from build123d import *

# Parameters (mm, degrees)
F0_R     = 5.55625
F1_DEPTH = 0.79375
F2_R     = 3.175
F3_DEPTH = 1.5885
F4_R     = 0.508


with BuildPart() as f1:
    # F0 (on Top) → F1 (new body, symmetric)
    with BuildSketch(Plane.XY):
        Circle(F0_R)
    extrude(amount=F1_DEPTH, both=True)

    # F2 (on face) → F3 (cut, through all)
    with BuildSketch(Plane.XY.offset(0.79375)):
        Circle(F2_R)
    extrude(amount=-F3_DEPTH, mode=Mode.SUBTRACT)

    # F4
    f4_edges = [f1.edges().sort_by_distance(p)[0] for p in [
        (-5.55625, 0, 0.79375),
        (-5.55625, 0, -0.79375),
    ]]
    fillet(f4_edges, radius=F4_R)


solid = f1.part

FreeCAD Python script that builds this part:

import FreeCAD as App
import Part
import Sketcher
Q = App.Units.Quantity


def edges_at(feature, points):
    """Names of the edges that pass closest to the given points."""
    edges = feature.Shape.Edges
    near = lambda p: min(range(len(edges)), key=lambda i: edges[i].distToShape(Part.Vertex(*p))[0])
    return sorted({f"Edge{near(p) + 1}" for p in points})

doc = App.newDocument("Part")
body = doc.addObject("PartDesign::Body", "Body")

sketch1 = doc.addObject("Sketcher::SketchObject", "Sketch")
body.addObject(sketch1)
sketch1.AttachmentSupport = (doc.XY_Plane, [""])
sketch1.MapMode = "FlatFace"
sketch1.addGeometry(Part.Circle(App.Vector(0, 0, 0), App.Vector(0, 0, 1), 5.55625), False)
sketch1.addConstraint([
    Sketcher.Constraint("Coincident", 0, 3, -1, 1),
    Sketcher.Constraint("Diameter", 0, Q("0.4375 in")),
])
pad1 = doc.addObject("PartDesign::Pad", "Pad")
body.addObject(pad1)
pad1.Profile = sketch1
pad1.Length = Q("0.0625 in")
pad1.Midplane = True

sketch2 = doc.addObject("Sketcher::SketchObject", "Sketch001")
body.addObject(sketch2)
sketch2.AttachmentSupport = (doc.XY_Plane, [""])
sketch2.MapMode = "FlatFace"
sketch2.AttachmentOffset = App.Placement(App.Vector(0, 0, 0.03125 * 25.4), App.Rotation())
sketch2.addGeometry(Part.Circle(App.Vector(0, 0, 0), App.Vector(0, 0, 1), 3.175), False)
sketch2.addConstraint([
    Sketcher.Constraint("Coincident", 0, 3, -1, 1),
    Sketcher.Constraint("Diameter", 0, Q("0.25 in")),
])
pocket1 = doc.addObject("PartDesign::Pocket", "Pocket")
body.addObject(pocket1)
pocket1.Profile = sketch2
pocket1.Type = "ThroughAll"
doc.recompute()

fillet = doc.addObject("PartDesign::Fillet", "Fillet")
body.addObject(fillet)
fillet.Base = (pocket1, edges_at(pocket1, [(-5.556, 0, 0.794), (-5.556, 0, -0.794)]))
fillet.Radius = Q("0.02 in")

doc.recompute()
